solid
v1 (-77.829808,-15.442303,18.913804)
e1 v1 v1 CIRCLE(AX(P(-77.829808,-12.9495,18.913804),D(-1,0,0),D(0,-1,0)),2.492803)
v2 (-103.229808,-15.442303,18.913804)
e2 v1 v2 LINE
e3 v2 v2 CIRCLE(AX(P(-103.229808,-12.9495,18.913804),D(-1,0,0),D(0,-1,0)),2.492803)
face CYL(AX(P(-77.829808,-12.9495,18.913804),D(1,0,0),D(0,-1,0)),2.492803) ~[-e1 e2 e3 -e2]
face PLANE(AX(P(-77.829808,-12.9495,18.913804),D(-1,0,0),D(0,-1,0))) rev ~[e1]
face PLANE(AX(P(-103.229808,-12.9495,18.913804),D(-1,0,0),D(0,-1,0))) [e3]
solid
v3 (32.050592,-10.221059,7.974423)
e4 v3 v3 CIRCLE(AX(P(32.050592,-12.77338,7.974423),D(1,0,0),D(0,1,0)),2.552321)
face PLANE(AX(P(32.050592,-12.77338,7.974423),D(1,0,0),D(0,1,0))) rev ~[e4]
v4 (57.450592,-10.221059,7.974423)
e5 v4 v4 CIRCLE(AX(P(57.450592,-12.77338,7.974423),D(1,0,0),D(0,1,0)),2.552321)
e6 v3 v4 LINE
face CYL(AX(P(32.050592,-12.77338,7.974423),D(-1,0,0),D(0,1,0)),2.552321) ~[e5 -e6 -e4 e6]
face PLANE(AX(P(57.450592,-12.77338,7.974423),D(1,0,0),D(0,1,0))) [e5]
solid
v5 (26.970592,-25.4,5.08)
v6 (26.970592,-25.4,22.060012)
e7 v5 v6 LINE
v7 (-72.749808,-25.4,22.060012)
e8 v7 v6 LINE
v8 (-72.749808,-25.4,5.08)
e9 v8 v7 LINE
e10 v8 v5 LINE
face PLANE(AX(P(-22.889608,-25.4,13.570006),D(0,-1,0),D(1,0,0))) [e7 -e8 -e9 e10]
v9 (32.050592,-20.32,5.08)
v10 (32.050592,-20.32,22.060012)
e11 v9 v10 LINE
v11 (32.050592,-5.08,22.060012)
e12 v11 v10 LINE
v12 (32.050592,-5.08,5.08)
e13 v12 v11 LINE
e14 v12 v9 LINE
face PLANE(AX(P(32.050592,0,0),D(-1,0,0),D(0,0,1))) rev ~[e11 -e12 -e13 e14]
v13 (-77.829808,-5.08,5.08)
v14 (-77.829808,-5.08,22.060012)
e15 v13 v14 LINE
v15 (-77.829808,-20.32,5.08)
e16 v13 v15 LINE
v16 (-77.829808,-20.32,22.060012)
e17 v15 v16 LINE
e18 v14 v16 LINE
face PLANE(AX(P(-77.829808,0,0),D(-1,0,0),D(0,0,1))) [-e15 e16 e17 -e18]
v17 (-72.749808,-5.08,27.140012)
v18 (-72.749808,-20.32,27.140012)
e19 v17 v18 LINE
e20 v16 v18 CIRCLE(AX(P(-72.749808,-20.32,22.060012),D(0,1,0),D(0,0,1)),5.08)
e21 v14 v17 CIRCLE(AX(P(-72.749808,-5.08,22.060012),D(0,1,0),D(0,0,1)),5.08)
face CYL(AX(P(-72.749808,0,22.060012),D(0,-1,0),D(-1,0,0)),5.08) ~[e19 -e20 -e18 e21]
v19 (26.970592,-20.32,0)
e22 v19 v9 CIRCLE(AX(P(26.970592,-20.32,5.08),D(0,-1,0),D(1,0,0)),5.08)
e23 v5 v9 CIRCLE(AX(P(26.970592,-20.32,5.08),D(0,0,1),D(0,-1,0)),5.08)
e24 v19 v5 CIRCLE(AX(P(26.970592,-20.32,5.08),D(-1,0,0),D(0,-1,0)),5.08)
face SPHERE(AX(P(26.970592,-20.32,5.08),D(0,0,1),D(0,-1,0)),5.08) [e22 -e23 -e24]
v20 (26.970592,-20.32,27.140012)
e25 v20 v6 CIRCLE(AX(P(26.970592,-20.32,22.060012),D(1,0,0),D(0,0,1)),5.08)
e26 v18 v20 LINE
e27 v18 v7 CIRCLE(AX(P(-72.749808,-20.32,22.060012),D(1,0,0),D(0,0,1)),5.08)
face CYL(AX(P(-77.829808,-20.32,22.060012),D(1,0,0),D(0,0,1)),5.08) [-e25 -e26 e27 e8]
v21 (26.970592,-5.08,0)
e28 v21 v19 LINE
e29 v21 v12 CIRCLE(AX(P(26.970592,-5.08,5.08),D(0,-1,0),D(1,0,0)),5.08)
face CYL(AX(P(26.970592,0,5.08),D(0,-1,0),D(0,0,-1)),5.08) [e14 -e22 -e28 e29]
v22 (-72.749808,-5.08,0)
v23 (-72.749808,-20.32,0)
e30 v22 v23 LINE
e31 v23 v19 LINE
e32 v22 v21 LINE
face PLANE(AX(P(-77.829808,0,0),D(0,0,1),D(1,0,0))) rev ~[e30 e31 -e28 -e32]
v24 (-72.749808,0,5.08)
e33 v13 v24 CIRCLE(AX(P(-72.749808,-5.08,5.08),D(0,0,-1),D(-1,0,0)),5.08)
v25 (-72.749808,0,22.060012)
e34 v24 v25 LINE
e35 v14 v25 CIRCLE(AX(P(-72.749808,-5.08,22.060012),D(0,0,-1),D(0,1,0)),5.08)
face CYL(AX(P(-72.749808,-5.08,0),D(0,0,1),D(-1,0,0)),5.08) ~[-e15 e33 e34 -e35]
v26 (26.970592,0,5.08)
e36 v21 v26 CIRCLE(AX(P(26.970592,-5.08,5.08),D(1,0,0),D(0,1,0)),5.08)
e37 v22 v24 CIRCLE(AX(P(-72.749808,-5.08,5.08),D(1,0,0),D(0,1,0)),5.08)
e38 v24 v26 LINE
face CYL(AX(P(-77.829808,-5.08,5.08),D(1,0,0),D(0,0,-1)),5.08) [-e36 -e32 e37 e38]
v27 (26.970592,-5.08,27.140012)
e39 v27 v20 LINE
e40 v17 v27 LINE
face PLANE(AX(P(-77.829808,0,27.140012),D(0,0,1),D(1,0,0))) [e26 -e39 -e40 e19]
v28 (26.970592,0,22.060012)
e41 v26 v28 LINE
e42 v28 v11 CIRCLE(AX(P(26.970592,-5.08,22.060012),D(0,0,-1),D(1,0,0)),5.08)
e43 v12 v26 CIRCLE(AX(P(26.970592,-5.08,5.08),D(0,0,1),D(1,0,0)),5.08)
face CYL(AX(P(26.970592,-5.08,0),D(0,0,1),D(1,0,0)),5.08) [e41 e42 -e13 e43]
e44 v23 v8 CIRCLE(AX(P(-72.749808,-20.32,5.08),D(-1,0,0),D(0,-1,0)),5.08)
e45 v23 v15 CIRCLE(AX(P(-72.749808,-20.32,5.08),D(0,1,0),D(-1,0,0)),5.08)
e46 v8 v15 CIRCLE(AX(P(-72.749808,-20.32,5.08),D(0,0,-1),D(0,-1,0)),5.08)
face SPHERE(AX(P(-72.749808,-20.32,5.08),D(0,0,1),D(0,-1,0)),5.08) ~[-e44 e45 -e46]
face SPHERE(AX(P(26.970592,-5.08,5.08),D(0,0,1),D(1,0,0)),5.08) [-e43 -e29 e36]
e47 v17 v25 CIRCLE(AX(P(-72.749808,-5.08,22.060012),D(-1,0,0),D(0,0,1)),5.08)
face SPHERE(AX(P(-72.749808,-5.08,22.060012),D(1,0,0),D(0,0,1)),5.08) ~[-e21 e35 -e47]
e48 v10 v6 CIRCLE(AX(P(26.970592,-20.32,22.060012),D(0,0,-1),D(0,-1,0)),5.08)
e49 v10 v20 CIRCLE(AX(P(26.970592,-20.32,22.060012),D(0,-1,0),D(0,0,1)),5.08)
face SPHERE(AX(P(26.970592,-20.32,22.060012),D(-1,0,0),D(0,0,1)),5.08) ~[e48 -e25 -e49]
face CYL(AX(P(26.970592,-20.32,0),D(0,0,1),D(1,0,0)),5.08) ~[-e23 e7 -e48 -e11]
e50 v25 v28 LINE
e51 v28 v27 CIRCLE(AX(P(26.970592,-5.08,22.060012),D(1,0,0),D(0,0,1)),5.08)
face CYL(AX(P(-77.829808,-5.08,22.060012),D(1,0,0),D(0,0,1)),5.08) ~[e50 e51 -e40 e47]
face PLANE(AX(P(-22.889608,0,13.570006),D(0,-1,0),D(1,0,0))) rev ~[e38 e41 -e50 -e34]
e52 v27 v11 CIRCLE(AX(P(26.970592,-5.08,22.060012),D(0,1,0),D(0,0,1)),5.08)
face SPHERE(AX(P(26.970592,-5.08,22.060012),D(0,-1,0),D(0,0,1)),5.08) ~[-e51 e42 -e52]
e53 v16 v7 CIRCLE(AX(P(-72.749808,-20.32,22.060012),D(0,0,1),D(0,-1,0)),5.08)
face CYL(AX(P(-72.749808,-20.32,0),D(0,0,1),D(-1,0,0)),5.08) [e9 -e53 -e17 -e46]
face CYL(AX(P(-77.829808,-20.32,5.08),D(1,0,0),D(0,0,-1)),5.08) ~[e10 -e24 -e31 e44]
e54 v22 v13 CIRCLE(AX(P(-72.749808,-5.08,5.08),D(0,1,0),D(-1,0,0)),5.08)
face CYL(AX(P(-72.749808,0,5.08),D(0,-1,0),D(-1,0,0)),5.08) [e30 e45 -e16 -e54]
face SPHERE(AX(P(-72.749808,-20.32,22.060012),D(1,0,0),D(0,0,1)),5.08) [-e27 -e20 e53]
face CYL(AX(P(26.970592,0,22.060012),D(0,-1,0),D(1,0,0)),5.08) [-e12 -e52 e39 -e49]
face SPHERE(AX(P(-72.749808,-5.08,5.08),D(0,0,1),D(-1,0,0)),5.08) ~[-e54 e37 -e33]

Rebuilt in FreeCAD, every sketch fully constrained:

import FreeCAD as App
import Part
import Sketcher
from FreeCAD import Vector
Q = App.Units.Quantity

doc = App.newDocument("Part")
params = doc.addObject("Spreadsheet::Sheet", "Params")
for row, (alias, value) in enumerate([
    ("sketch1_width", "4.326 in"),
    ("pad1_length", "1 in"),
    ("fillet_radius", "0.2 in"),
    ("pad2_length", "1 in"),
    ("pad3_length", "1 in"),
], start=1):
    params.set(f"A{row}", alias)
    params.set(f"B{row}", "=" + value)
    params.setAlias(f"B{row}", alias)

body = doc.addObject("PartDesign::Body", "Body")

sketch1 = doc.addObject("Sketcher::SketchObject", "Sketch")
body.addObject(sketch1)
sketch1.AttachmentSupport = (doc.XZ_Plane, [""])
sketch1.MapMode = "FlatFace"
sketch1.addGeometry([
    Part.LineSegment(Vector(-78, 27, 0), Vector(-78, 0, 0)),
    Part.LineSegment(Vector(-78, 0, 0), Vector(32, 0, 0)),
    Part.LineSegment(Vector(32, 0, 0), Vector(32, 27, 0)),
    Part.LineSegment(Vector(32, 27, 0), Vector(-78, 27, 0)),
], False)
sketch1.addConstraint([
    Sketcher.Constraint("Coincident", 0, 2, 1, 1),
    Sketcher.Constraint("Coincident", 1, 2, 2, 1),
    Sketcher.Constraint("Coincident", 2, 2, 3, 1),
    Sketcher.Constraint("Coincident", 3, 2, 0, 1),
    Sketcher.Constraint("Vertical", 0),
    Sketcher.Constraint("Horizontal", 1),
    Sketcher.Constraint("Vertical", 2),
    Sketcher.Constraint("Horizontal", 3),
    Sketcher.Constraint("PointOnObject", 0, 2, -1),
    Sketcher.Constraint("DistanceX", 1, 1, 1, 2, Q("4.326 in")),
    Sketcher.Constraint("DistanceY", 0, 2, 0, 1, Q("27.140012 mm")),
    Sketcher.Constraint("DistanceX", 0, 2, -1, 1, Q("77.829808 mm")),
])
sketch1.setExpression("Constraints[9]", "Params.sketch1_width")
pad1 = doc.addObject("PartDesign::Pad", "Pad")
body.addObject(pad1)
pad1.Profile = sketch1
pad1.setExpression("Length", "Params.pad1_length")
doc.recompute()

fillet = doc.addObject("PartDesign::Fillet", "Fillet")
body.addObject(fillet)
fillet.Base = (pad1, ["Edge1"])
fillet.UseAllEdges = True
fillet.setExpression("Radius", "Params.fillet_radius")
body2 = doc.addObject("PartDesign::Body", "Body001")

sketch2 = doc.addObject("Sketcher::SketchObject", "Sketch001")
body2.addObject(sketch2)
sketch2.AttachmentSupport = (doc.getObject("YZ_Plane001"), [""])
sketch2.MapMode = "FlatFace"
sketch2.AttachmentOffset = App.Placement(Vector(0, 0, 32.050592), App.Rotation())
sketch2.addGeometry(Part.Circle(Vector(-12.8, 8, 0), Vector(0, 0, 1), 2.6), False)
sketch2.addConstraint([
    Sketcher.Constraint("Diameter", 0, Q("5.104642 mm")),
    Sketcher.Constraint("DistanceX", 0, 3, -1, 1, Q("12.77338 mm")),
    Sketcher.Constraint("DistanceY", -1, 1, 0, 3, Q("7.974423 mm")),
])
pad2 = doc.addObject("PartDesign::Pad", "Pad001")
body2.addObject(pad2)
pad2.Profile = sketch2
pad2.setExpression("Length", "Params.pad2_length")
body3 = doc.addObject("PartDesign::Body", "Body002")

sketch3 = doc.addObject("Sketcher::SketchObject", "Sketch002")
body3.addObject(sketch3)
sketch3.AttachmentSupport = (doc.getObject("YZ_Plane002"), [""])
sketch3.MapMode = "FlatFace"
sketch3.AttachmentOffset = App.Placement(Vector(0, 0, -77.829808), App.Rotation())
sketch3.addGeometry(Part.Circle(Vector(-12.9, 18.9, 0), Vector(0, 0, 1), 2.5), False)
sketch3.addConstraint([
    Sketcher.Constraint("Diameter", 0, Q("4.985606 mm")),
    Sketcher.Constraint("DistanceX", 0, 3, -1, 1, Q("12.9495 mm")),
    Sketcher.Constraint("DistanceY", -1, 1, 0, 3, Q("18.913804 mm")),
])
pad3 = doc.addObject("PartDesign::Pad", "Pad002")
body3.addObject(pad3)
pad3.Profile = sketch3
pad3.setExpression("Length", "Params.pad3_length")
pad3.Reversed = True

doc.recompute()
